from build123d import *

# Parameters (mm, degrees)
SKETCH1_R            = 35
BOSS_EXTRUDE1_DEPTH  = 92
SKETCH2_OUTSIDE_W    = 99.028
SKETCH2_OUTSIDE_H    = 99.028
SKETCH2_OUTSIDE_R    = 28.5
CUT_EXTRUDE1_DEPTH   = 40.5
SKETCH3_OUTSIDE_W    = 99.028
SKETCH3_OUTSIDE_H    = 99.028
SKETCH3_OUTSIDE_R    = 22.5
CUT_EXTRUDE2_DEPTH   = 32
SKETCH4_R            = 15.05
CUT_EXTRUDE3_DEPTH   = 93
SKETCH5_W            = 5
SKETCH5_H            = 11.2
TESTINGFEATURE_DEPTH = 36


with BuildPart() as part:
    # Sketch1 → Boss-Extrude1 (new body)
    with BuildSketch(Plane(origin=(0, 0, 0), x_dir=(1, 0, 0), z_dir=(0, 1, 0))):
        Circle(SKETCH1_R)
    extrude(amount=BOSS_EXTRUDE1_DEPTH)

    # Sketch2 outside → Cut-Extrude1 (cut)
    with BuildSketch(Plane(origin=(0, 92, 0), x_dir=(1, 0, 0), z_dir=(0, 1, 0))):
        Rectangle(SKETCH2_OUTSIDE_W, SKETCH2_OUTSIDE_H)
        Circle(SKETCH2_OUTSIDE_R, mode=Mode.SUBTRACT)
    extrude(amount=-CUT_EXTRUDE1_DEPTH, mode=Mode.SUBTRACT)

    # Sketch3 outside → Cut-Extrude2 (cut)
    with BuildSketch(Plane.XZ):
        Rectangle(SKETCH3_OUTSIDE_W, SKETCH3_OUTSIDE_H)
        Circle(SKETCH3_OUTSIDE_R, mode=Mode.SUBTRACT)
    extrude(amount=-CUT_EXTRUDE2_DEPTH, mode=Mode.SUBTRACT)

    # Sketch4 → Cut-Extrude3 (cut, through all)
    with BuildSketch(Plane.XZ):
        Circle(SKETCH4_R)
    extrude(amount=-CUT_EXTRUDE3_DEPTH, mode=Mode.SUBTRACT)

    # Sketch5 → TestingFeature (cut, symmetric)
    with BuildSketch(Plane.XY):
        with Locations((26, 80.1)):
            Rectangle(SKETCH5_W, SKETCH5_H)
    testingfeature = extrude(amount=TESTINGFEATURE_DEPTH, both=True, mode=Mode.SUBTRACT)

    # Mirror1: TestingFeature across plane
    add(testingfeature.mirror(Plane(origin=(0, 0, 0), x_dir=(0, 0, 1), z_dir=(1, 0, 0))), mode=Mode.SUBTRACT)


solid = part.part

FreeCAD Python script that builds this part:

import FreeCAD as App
import Part
import Sketcher

doc = App.newDocument("Part")
body = doc.addObject("PartDesign::Body", "Body")

# Sketch on XZ plane
sketch1 = body.newObject("Sketcher::SketchObject", "Sketch")
sketch1.AttachmentSupport = (doc.getObject("XZ_Plane"), [""])
sketch1.MapMode = "FlatFace"
sketch1.addGeometry(Part.Circle(App.Vector(0, 0, 0), App.Vector(0, 0, 1), 35), False)
sketch1.addConstraint(Sketcher.Constraint("Coincident", 0, 3, -1, 1))
sketch1.addConstraint(Sketcher.Constraint("Diameter", 0, 70.0))
pad1 = body.newObject("PartDesign::Pad", "Pad")
pad1.Profile = sketch1
pad1.Length = 92
pad1.Reversed = True

# Sketch on XZ plane
sketch2 = body.newObject("Sketcher::SketchObject", "Sketch001")
sketch2.AttachmentSupport = (doc.getObject("XZ_Plane"), [""])
sketch2.MapMode = "FlatFace"
sketch2.AttachmentOffset = App.Placement(App.Vector(0, 0, -92), App.Rotation())
sketch2.addGeometry(Part.LineSegment(App.Vector(-50, -50, 0), App.Vector(-50, 50, 0)), False)
sketch2.addGeometry(Part.LineSegment(App.Vector(-50, 50, 0), App.Vector(50, 50, 0)), False)
sketch2.addGeometry(Part.LineSegment(App.Vector(50, 50, 0), App.Vector(50, -50, 0)), False)
sketch2.addGeometry(Part.LineSegment(App.Vector(50, -50, 0), App.Vector(-50, -50, 0)), False)
sketch2.addGeometry(Part.Circle(App.Vector(0, 0, 0), App.Vector(0, 0, 1), 28), False)
sketch2.addConstraint(Sketcher.Constraint("Coincident", 0, 2, 1, 1))
sketch2.addConstraint(Sketcher.Constraint("Coincident", 1, 2, 2, 1))
sketch2.addConstraint(Sketcher.Constraint("Coincident", 2, 2, 3, 1))
sketch2.addConstraint(Sketcher.Constraint("Coincident", 3, 2, 0, 1))
sketch2.addConstraint(Sketcher.Constraint("Vertical", 0))
sketch2.addConstraint(Sketcher.Constraint("Horizontal", 1))
sketch2.addConstraint(Sketcher.Constraint("Vertical", 2))
sketch2.addConstraint(Sketcher.Constraint("Horizontal", 3))
sketch2.addConstraint(Sketcher.Constraint("Coincident", 4, 3, -1, 1))
sketch2.addConstraint(Sketcher.Constraint("Symmetric", 0, 2, 2, 2, -1, 1))
sketch2.addConstraint(Sketcher.Constraint("Equal", 3, 0))
sketch2.addConstraint(Sketcher.Constraint("Diameter", 4, 57.0))
sketch2.addConstraint(Sketcher.Constraint("DistanceX", 1, 1, 1, 2, 99.028))
pocket1 = body.newObject("PartDesign::Pocket", "Pocket")
pocket1.Profile = sketch2
pocket1.Length = 40.5
pocket1.Reversed = True

# Sketch on XZ plane
sketch3 = body.newObject("Sketcher::SketchObject", "Sketch002")
sketch3.AttachmentSupport = (doc.getObject("XZ_Plane"), [""])
sketch3.MapMode = "FlatFace"
sketch3.addGeometry(Part.LineSegment(App.Vector(-50, 50, 0), App.Vector(-50, -50, 0)), False)
sketch3.addGeometry(Part.LineSegment(App.Vector(-50, -50, 0), App.Vector(50, -50, 0)), False)
sketch3.addGeometry(Part.LineSegment(App.Vector(50, -50, 0), App.Vector(50, 50, 0)), False)
sketch3.addGeometry(Part.LineSegment(App.Vector(50, 50, 0), App.Vector(-50, 50, 0)), False)
sketch3.addGeometry(Part.Circle(App.Vector(0, 0, 0), App.Vector(0, 0, 1), 22), False)
sketch3.addConstraint(Sketcher.Constraint("Coincident", 0, 2, 1, 1))
sketch3.addConstraint(Sketcher.Constraint("Coincident", 1, 2, 2, 1))
sketch3.addConstraint(Sketcher.Constraint("Coincident", 2, 2, 3, 1))
sketch3.addConstraint(Sketcher.Constraint("Coincident", 3, 2, 0, 1))
sketch3.addConstraint(Sketcher.Constraint("Vertical", 0))
sketch3.addConstraint(Sketcher.Constraint("Horizontal", 1))
sketch3.addConstraint(Sketcher.Constraint("Vertical", 2))
sketch3.addConstraint(Sketcher.Constraint("Horizontal", 3))
sketch3.addConstraint(Sketcher.Constraint("Coincident", 4, 3, -1, 1))
sketch3.addConstraint(Sketcher.Constraint("Symmetric", 0, 2, 2, 2, -1, 1))
sketch3.addConstraint(Sketcher.Constraint("Equal", 3, 0))
sketch3.addConstraint(Sketcher.Constraint("Diameter", 4, 45.0))
sketch3.addConstraint(Sketcher.Constraint("DistanceX", 1, 1, 1, 2, 99.028))
pocket2 = body.newObject("PartDesign::Pocket", "Pocket001")
pocket2.Profile = sketch3
pocket2.Length = 32

# Sketch on XZ plane
sketch4 = body.newObject("Sketcher::SketchObject", "Sketch003")
sketch4.AttachmentSupport = (doc.getObject("XZ_Plane"), [""])
sketch4.MapMode = "FlatFace"
sketch4.addGeometry(Part.Circle(App.Vector(0, 0, 0), App.Vector(0, 0, 1), 15), False)
sketch4.addConstraint(Sketcher.Constraint("Coincident", 0, 3, -1, 1))
sketch4.addConstraint(Sketcher.Constraint("Diameter", 0, 30.1))
pocket3 = body.newObject("PartDesign::Pocket", "Pocket002")
pocket3.Profile = sketch4
pocket3.Type = "ThroughAll"

# Sketch on XY plane
sketch5 = body.newObject("Sketcher::SketchObject", "Sketch004")
sketch5.AttachmentSupport = (doc.getObject("XY_Plane"), [""])
sketch5.MapMode = "FlatFace"
sketch5.addGeometry(Part.LineSegment(App.Vector(24, 86, 0), App.Vector(24, 74, 0)), False)
sketch5.addGeometry(Part.LineSegment(App.Vector(24, 74, 0), App.Vector(28, 74, 0)), False)
sketch5.addGeometry(Part.LineSegment(App.Vector(28, 74, 0), App.Vector(28, 86, 0)), False)
sketch5.addGeometry(Part.LineSegment(App.Vector(28, 86, 0), App.Vector(24, 86, 0)), False)
sketch5.addConstraint(Sketcher.Constraint("Coincident", 0, 2, 1, 1))
sketch5.addConstraint(Sketcher.Constraint("Coincident", 1, 2, 2, 1))
sketch5.addConstraint(Sketcher.Constraint("Coincident", 2, 2, 3, 1))
sketch5.addConstraint(Sketcher.Constraint("Coincident", 3, 2, 0, 1))
sketch5.addConstraint(Sketcher.Constraint("Vertical", 0))
sketch5.addConstraint(Sketcher.Constraint("Horizontal", 1))
sketch5.addConstraint(Sketcher.Constraint("Vertical", 2))
sketch5.addConstraint(Sketcher.Constraint("Horizontal", 3))
sketch5.addConstraint(Sketcher.Constraint("DistanceX", 1, 1, 1, 2, 5.0))
sketch5.addConstraint(Sketcher.Constraint("DistanceY", 0, 2, 0, 1, 11.2))
sketch5.addConstraint(Sketcher.Constraint("DistanceX", -1, 1, 0, 2, 23.5))
sketch5.addConstraint(Sketcher.Constraint("DistanceY", -1, 1, 0, 2, 74.5))
pocket4 = body.newObject("PartDesign::Pocket", "Pocket003")
pocket4.Profile = sketch5
pocket4.Length = 72
pocket4.Midplane = True
doc.recompute()

mirrored = body.newObject("PartDesign::Mirrored", "Mirrored")
mirrored.Originals = [pocket4]
mirrored.MirrorPlane = (doc.getObject("YZ_Plane"), [""])
body.Tip = mirrored

doc.recompute()
